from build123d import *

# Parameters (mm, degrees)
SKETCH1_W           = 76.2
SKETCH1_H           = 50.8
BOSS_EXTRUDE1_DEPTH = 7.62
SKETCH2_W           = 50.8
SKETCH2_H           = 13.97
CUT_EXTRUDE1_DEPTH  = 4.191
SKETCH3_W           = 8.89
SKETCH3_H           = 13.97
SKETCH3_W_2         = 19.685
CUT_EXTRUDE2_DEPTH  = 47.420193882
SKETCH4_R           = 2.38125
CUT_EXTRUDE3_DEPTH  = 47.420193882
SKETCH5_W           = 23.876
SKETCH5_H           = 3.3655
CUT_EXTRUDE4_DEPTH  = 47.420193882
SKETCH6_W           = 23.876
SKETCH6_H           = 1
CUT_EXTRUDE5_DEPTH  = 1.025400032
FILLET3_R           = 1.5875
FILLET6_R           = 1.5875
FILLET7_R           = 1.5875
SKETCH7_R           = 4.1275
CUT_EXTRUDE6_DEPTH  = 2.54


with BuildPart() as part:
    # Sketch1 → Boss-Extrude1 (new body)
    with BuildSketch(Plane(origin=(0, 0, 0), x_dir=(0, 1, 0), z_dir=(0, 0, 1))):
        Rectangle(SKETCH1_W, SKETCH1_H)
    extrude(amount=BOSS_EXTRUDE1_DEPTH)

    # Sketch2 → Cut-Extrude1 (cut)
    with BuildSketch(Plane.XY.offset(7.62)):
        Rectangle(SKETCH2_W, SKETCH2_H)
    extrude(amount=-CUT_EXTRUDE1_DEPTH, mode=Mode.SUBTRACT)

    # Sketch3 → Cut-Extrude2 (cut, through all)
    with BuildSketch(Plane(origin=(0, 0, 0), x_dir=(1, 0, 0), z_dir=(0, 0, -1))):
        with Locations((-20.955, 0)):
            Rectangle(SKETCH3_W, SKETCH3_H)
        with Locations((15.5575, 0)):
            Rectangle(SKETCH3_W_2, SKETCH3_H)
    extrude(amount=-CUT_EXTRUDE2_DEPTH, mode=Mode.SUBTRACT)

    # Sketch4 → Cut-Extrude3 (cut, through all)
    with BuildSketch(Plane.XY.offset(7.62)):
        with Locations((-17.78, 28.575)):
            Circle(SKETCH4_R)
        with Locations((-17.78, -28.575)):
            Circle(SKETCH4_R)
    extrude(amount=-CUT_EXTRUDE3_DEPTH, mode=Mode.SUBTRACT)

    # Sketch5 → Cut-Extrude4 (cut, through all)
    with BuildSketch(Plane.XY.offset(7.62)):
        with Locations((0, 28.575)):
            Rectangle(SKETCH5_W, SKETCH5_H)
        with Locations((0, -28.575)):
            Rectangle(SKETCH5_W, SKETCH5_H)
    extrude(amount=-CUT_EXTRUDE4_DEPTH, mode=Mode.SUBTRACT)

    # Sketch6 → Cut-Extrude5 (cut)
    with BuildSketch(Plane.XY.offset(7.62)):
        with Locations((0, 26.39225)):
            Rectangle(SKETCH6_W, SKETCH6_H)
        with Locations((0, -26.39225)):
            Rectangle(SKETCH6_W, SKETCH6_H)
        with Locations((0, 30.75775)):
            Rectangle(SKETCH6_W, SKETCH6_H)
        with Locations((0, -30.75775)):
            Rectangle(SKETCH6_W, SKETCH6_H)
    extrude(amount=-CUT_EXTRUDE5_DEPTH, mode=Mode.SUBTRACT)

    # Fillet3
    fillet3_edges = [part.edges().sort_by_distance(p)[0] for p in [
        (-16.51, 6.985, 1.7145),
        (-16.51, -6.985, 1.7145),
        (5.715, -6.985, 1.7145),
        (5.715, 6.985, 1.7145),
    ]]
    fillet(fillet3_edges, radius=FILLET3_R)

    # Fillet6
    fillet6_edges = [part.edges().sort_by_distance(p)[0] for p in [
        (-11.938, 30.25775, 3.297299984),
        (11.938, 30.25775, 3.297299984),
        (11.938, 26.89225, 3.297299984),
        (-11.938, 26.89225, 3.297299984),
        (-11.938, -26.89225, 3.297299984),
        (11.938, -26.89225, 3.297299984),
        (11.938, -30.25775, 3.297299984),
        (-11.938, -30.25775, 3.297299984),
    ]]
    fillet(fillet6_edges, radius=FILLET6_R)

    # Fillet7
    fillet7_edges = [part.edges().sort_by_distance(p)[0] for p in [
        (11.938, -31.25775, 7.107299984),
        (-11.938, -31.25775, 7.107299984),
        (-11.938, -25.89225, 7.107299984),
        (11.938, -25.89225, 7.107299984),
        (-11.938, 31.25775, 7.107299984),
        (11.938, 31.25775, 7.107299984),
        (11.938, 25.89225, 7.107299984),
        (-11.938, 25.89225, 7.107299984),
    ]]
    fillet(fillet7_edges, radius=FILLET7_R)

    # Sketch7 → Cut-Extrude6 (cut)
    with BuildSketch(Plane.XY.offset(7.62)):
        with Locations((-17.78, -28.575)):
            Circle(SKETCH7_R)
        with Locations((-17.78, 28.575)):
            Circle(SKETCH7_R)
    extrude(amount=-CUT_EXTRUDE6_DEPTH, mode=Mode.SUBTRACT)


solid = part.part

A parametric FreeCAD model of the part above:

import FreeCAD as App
import Part
import Sketcher
from FreeCAD import Vector
Q = App.Units.Quantity


def edges_at(feature, points):
    """Names of the edges that pass closest to the given points."""
    edges = feature.Shape.Edges
    near = lambda p: min(range(len(edges)), key=lambda i: edges[i].distToShape(Part.Vertex(*p))[0])
    return sorted({f"Edge{near(p) + 1}" for p in points})


def add_polygon(sketch, points):
    """Adds a closed chain of lines whose ends are joined by coincident constraints."""
    first, n = sketch.GeometryCount, len(points)
    for a, b in zip(points, points[1:] + points[:1]):
        sketch.addGeometry(Part.LineSegment(App.Vector(*a, 0), App.Vector(*b, 0)), False)
    for i in range(n):
        sketch.addConstraint(Sketcher.Constraint("Coincident", first + i, 2, first + (i + 1) % n, 1))

doc = App.newDocument("Part")
body = doc.addObject("PartDesign::Body", "Body")

sketch1 = body.newObject("Sketcher::SketchObject", "Sketch")
sketch1.AttachmentSupport = (doc.getObject("XY_Plane"), [""])
sketch1.MapMode = "FlatFace"
add_polygon(sketch1, [(-25.4, -38.1), (25.4, -38.1), (25.4, 38.1), (-25.4, 38.1)])
sketch1.addConstraint(Sketcher.Constraint("Horizontal", 0))
sketch1.addConstraint(Sketcher.Constraint("Vertical", 1))
sketch1.addConstraint(Sketcher.Constraint("Horizontal", 2))
sketch1.addConstraint(Sketcher.Constraint("Vertical", 3))
sketch1.addConstraint(Sketcher.Constraint("Symmetric", 0, 2, 2, 2, -1, 1))
sketch1.addConstraint(Sketcher.Constraint("DistanceX", 0, 1, 0, 2, Q("2 in")))
sketch1.addConstraint(Sketcher.Constraint("DistanceY", 1, 1, 1, 2, Q("3 in")))
pad1 = body.newObject("PartDesign::Pad", "Pad")
pad1.Profile = sketch1
pad1.Length = Q("0.3 in")

sketch2 = body.newObject("Sketcher::SketchObject", "Sketch001")
sketch2.AttachmentSupport = (doc.getObject("XY_Plane"), [""])
sketch2.MapMode = "FlatFace"
sketch2.AttachmentOffset = App.Placement(Vector(0, 0, 0.3 * 25.4), App.Rotation())
add_polygon(sketch2, [(-25.4, 6.985), (-25.4, -6.985), (25.4, -6.985), (25.4, 6.985)])
sketch2.addConstraint(Sketcher.Constraint("Vertical", 0))
sketch2.addConstraint(Sketcher.Constraint("Horizontal", 1))
sketch2.addConstraint(Sketcher.Constraint("Vertical", 2))
sketch2.addConstraint(Sketcher.Constraint("Horizontal", 3))
sketch2.addConstraint(Sketcher.Constraint("Symmetric", 0, 2, 2, 2, -1, 1))
sketch2.addConstraint(Sketcher.Constraint("DistanceX", 1, 1, 1, 2, Q("2 in")))
sketch2.addConstraint(Sketcher.Constraint("DistanceY", 0, 2, 0, 1, Q("0.55 in")))
pocket1 = body.newObject("PartDesign::Pocket", "Pocket")
pocket1.Profile = sketch2
pocket1.Length = Q("0.165 in")

sketch3 = body.newObject("Sketcher::SketchObject", "Sketch002")
sketch3.AttachmentSupport = (doc.getObject("XY_Plane"), [""])
sketch3.MapMode = "FlatFace"
add_polygon(sketch3, [(-25.4, -6.985), (-25.4, 6.985), (-16.51, 6.985), (-16.51, -6.985)])
add_polygon(sketch3, [(5.715, -6.985), (5.715, 6.985), (25.4, 6.985), (25.4, -6.985)])
sketch3.addConstraint(Sketcher.Constraint("Vertical", 0))
sketch3.addConstraint(Sketcher.Constraint("Horizontal", 1))
sketch3.addConstraint(Sketcher.Constraint("Vertical", 2))
sketch3.addConstraint(Sketcher.Constraint("Horizontal", 3))
sketch3.addConstraint(Sketcher.Constraint("Vertical", 4))
sketch3.addConstraint(Sketcher.Constraint("Horizontal", 5))
sketch3.addConstraint(Sketcher.Constraint("Vertical", 6))
sketch3.addConstraint(Sketcher.Constraint("Horizontal", 7))
sketch3.addConstraint(Sketcher.Constraint("Symmetric", 3, 2, 5, 2, -1, 1))
sketch3.addConstraint(Sketcher.Constraint("Horizontal", 1, 2, 4, 2))
sketch3.addConstraint(Sketcher.Constraint("Horizontal", 3, 2, 6, 2))
sketch3.addConstraint(Sketcher.Constraint("DistanceX", 0, 2, -1, 1, Q("1 in")))
sketch3.addConstraint(Sketcher.Constraint("DistanceX", 1, 1, 1, 2, Q("0.35 in")))
sketch3.addConstraint(Sketcher.Constraint("DistanceY", 0, 1, 0, 2, Q("0.55 in")))
sketch3.addConstraint(Sketcher.Constraint("DistanceX", 5, 1, 5, 2, Q("0.775 in")))
pocket2 = body.newObject("PartDesign::Pocket", "Pocket001")
pocket2.Profile = sketch3
pocket2.Type = "ThroughAll"
pocket2.Reversed = True

sketch4 = body.newObject("Sketcher::SketchObject", "Sketch003")
sketch4.AttachmentSupport = (doc.getObject("XY_Plane"), [""])
sketch4.MapMode = "FlatFace"
sketch4.AttachmentOffset = App.Placement(Vector(0, 0, 0.3 * 25.4), App.Rotation())
sketch4.addGeometry(Part.Circle(Vector(-17.78, 28.575, 0), Vector(0, 0, 1), 2.38125), False)
sketch4.addGeometry(Part.Circle(Vector(-17.78, -28.575, 0), Vector(0, 0, 1), 2.38125), False)
sketch4.addConstraint(Sketcher.Constraint("Equal", 0, 1))
sketch4.addConstraint(Sketcher.Constraint("Symmetric", 0, 3, 1, 3, -1))
sketch4.addConstraint(Sketcher.Constraint("Diameter", 0, Q("0.1875 in")))
sketch4.addConstraint(Sketcher.Constraint("DistanceX", 0, 3, -1, 1, Q("0.7 in")))
sketch4.addConstraint(Sketcher.Constraint("DistanceY", 1, 3, 0, 3, Q("2.25 in")))
pocket3 = body.newObject("PartDesign::Pocket", "Pocket002")
pocket3.Profile = sketch4
pocket3.Type = "ThroughAll"

sketch5 = body.newObject("Sketcher::SketchObject", "Sketch004")
sketch5.AttachmentSupport = (doc.getObject("XY_Plane"), [""])
sketch5.MapMode = "FlatFace"
sketch5.AttachmentOffset = App.Placement(Vector(0, 0, 0.3 * 25.4), App.Rotation())
add_polygon(sketch5, [(-11.938, 30.25775), (-11.938, 26.89225), (11.938, 26.89225), (11.938, 30.25775)])
add_polygon(sketch5, [(-11.938, -26.89225), (-11.938, -30.25775), (11.938, -30.25775), (11.938, -26.89225)])
sketch5.addConstraint(Sketcher.Constraint("Vertical", 0))
sketch5.addConstraint(Sketcher.Constraint("Horizontal", 1))
sketch5.addConstraint(Sketcher.Constraint("Vertical", 2))
sketch5.addConstraint(Sketcher.Constraint("Horizontal", 3))
sketch5.addConstraint(Sketcher.Constraint("Vertical", 4))
sketch5.addConstraint(Sketcher.Constraint("Horizontal", 5))
sketch5.addConstraint(Sketcher.Constraint("Vertical", 6))
sketch5.addConstraint(Sketcher.Constraint("Horizontal", 7))
sketch5.addConstraint(Sketcher.Constraint("Symmetric", 2, 2, 4, 2, -1, 1))
sketch5.addConstraint(Sketcher.Constraint("Symmetric", 0, 2, 6, 2, -1, 1))
sketch5.addConstraint(Sketcher.Constraint("Vertical", 3, 2, 4, 2))
sketch5.addConstraint(Sketcher.Constraint("DistanceX", 1, 1, 1, 2, Q("0.94 in")))
sketch5.addConstraint(Sketcher.Constraint("DistanceY", 4, 2, 0, 2, Q("2.25 in")))
sketch5.addConstraint(Sketcher.Constraint("DistanceY", 0, 2, 0, 1, Q("0.1325 in")))
pocket4 = body.newObject("PartDesign::Pocket", "Pocket003")
pocket4.Profile = sketch5
pocket4.Type = "ThroughAll"

sketch6 = body.newObject("Sketcher::SketchObject", "Sketch005")
sketch6.AttachmentSupport = (doc.getObject("XY_Plane"), [""])
sketch6.MapMode = "FlatFace"
sketch6.AttachmentOffset = App.Placement(Vector(0, 0, 0.3 * 25.4), App.Rotation())
add_polygon(sketch6, [(-11.938, 26.89225), (-11.938, 25.89225), (11.938, 25.89225), (11.938, 26.89225)])
add_polygon(sketch6, [(-11.938, -25.89225), (-11.938, -26.89225), (11.938, -26.89225), (11.938, -25.89225)])
add_polygon(sketch6, [(-11.938, 31.25775), (-11.938, 30.25775), (11.938, 30.25775), (11.938, 31.25775)])
add_polygon(sketch6, [(-11.938, -30.25775), (-11.938, -31.25775), (11.938, -31.25775), (11.938, -30.25775)])
sketch6.addConstraint(Sketcher.Constraint("Vertical", 0))
sketch6.addConstraint(Sketcher.Constraint("Horizontal", 1))
sketch6.addConstraint(Sketcher.Constraint("Vertical", 2))
sketch6.addConstraint(Sketcher.Constraint("Horizontal", 3))
sketch6.addConstraint(Sketcher.Constraint("Vertical", 4))
sketch6.addConstraint(Sketcher.Constraint("Horizontal", 5))
sketch6.addConstraint(Sketcher.Constraint("Vertical", 6))
sketch6.addConstraint(Sketcher.Constraint("Horizontal", 7))
sketch6.addConstraint(Sketcher.Constraint("Vertical", 8))
sketch6.addConstraint(Sketcher.Constraint("Horizontal", 9))
sketch6.addConstraint(Sketcher.Constraint("Vertical", 10))
sketch6.addConstraint(Sketcher.Constraint("Horizontal", 11))
sketch6.addConstraint(Sketcher.Constraint("Vertical", 12))
sketch6.addConstraint(Sketcher.Constraint("Horizontal", 13))
sketch6.addConstraint(Sketcher.Constraint("Vertical", 14))
sketch6.addConstraint(Sketcher.Constraint("Horizontal", 15))
sketch6.addConstraint(Sketcher.Constraint("Symmetric", 2, 2, 4, 2, -1, 1))
sketch6.addConstraint(Sketcher.Constraint("Symmetric", 0, 2, 6, 2, -1, 1))
sketch6.addConstraint(Sketcher.Constraint("Symmetric", 10, 2, 12, 2, -1, 1))
sketch6.addConstraint(Sketcher.Constraint("Symmetric", 8, 2, 14, 2, -1, 1))
sketch6.addConstraint(Sketcher.Constraint("Vertical", 3, 2, 4, 2))
sketch6.addConstraint(Sketcher.Constraint("Vertical", 7, 2, 8, 2))
sketch6.addConstraint(Sketcher.Constraint("Vertical", 6, 2, 9, 2))
sketch6.addConstraint(Sketcher.Constraint("Equal", 6, 8))
sketch6.addConstraint(Sketcher.Constraint("DistanceX", 1, 1, 1, 2, Q("0.94 in")))
sketch6.addConstraint(Sketcher.Constraint("DistanceY", 12, 2, 0, 2, Q("2.25 in")))
sketch6.addConstraint(Sketcher.Constraint("DistanceY", 0, 2, 0, 1, Q("1 mm")))
sketch6.addConstraint(Sketcher.Constraint("DistanceY", 4, 2, 3, 2, Q("2.1175 in")))
pocket5 = body.newObject("PartDesign::Pocket", "Pocket004")
pocket5.Profile = sketch6
pocket5.Length = 1.0254
doc.recompute()

fillet = body.newObject("PartDesign::Fillet", "Fillet")
fillet.Base = (pocket5, edges_at(pocket5, [
    (-16.51, 6.985, 1.714),
    (-16.51, -6.985, 1.714),
    (5.715, -6.985, 1.714),
    (5.715, 6.985, 1.714),
]))
fillet.Radius = Q("0.0625 in")
doc.recompute()

fillet2 = body.newObject("PartDesign::Fillet", "Fillet001")
fillet2.Base = (fillet, edges_at(fillet, [
    (-11.938, 30.258, 3.297),
    (11.938, 30.258, 3.297),
    (11.938, 26.892, 3.297),
    (-11.938, 26.892, 3.297),
    (-11.938, -26.892, 3.297),
    (11.938, -26.892, 3.297),
    (11.938, -30.258, 3.297),
    (-11.938, -30.258, 3.297),
]))
fillet2.Radius = Q("0.0625 in")
doc.recompute()

fillet3 = body.newObject("PartDesign::Fillet", "Fillet002")
fillet3.Base = (fillet2, edges_at(fillet2, [
    (11.938, -31.258, 7.107),
    (-11.938, -31.258, 7.107),
    (-11.938, -25.892, 7.107),
    (11.938, -25.892, 7.107),
    (-11.938, 31.258, 7.107),
    (11.938, 31.258, 7.107),
    (11.938, 25.892, 7.107),
    (-11.938, 25.892, 7.107),
]))
fillet3.Radius = Q("0.0625 in")

sketch7 = body.newObject("Sketcher::SketchObject", "Sketch006")
sketch7.AttachmentSupport = (doc.getObject("XY_Plane"), [""])
sketch7.MapMode = "FlatFace"
sketch7.AttachmentOffset = App.Placement(Vector(0, 0, 0.3 * 25.4), App.Rotation())
sketch7.addGeometry(Part.Circle(Vector(-17.78, -28.575, 0), Vector(0, 0, 1), 4.1275), False)
sketch7.addGeometry(Part.Circle(Vector(-17.78, 28.575, 0), Vector(0, 0, 1), 4.1275), False)
sketch7.addConstraint(Sketcher.Constraint("Equal", 0, 1))
sketch7.addConstraint(Sketcher.Constraint("Symmetric", 0, 3, 1, 3, -1))
sketch7.addConstraint(Sketcher.Constraint("Diameter", 0, Q("0.325 in")))
sketch7.addConstraint(Sketcher.Constraint("DistanceX", 0, 3, -1, 1, Q("0.7 in")))
sketch7.addConstraint(Sketcher.Constraint("DistanceY", 0, 3, 1, 3, Q("2.25 in")))
pocket6 = body.newObject("PartDesign::Pocket", "Pocket005")
pocket6.Profile = sketch7
pocket6.Length = Q("0.1 in")

doc.recompute()
